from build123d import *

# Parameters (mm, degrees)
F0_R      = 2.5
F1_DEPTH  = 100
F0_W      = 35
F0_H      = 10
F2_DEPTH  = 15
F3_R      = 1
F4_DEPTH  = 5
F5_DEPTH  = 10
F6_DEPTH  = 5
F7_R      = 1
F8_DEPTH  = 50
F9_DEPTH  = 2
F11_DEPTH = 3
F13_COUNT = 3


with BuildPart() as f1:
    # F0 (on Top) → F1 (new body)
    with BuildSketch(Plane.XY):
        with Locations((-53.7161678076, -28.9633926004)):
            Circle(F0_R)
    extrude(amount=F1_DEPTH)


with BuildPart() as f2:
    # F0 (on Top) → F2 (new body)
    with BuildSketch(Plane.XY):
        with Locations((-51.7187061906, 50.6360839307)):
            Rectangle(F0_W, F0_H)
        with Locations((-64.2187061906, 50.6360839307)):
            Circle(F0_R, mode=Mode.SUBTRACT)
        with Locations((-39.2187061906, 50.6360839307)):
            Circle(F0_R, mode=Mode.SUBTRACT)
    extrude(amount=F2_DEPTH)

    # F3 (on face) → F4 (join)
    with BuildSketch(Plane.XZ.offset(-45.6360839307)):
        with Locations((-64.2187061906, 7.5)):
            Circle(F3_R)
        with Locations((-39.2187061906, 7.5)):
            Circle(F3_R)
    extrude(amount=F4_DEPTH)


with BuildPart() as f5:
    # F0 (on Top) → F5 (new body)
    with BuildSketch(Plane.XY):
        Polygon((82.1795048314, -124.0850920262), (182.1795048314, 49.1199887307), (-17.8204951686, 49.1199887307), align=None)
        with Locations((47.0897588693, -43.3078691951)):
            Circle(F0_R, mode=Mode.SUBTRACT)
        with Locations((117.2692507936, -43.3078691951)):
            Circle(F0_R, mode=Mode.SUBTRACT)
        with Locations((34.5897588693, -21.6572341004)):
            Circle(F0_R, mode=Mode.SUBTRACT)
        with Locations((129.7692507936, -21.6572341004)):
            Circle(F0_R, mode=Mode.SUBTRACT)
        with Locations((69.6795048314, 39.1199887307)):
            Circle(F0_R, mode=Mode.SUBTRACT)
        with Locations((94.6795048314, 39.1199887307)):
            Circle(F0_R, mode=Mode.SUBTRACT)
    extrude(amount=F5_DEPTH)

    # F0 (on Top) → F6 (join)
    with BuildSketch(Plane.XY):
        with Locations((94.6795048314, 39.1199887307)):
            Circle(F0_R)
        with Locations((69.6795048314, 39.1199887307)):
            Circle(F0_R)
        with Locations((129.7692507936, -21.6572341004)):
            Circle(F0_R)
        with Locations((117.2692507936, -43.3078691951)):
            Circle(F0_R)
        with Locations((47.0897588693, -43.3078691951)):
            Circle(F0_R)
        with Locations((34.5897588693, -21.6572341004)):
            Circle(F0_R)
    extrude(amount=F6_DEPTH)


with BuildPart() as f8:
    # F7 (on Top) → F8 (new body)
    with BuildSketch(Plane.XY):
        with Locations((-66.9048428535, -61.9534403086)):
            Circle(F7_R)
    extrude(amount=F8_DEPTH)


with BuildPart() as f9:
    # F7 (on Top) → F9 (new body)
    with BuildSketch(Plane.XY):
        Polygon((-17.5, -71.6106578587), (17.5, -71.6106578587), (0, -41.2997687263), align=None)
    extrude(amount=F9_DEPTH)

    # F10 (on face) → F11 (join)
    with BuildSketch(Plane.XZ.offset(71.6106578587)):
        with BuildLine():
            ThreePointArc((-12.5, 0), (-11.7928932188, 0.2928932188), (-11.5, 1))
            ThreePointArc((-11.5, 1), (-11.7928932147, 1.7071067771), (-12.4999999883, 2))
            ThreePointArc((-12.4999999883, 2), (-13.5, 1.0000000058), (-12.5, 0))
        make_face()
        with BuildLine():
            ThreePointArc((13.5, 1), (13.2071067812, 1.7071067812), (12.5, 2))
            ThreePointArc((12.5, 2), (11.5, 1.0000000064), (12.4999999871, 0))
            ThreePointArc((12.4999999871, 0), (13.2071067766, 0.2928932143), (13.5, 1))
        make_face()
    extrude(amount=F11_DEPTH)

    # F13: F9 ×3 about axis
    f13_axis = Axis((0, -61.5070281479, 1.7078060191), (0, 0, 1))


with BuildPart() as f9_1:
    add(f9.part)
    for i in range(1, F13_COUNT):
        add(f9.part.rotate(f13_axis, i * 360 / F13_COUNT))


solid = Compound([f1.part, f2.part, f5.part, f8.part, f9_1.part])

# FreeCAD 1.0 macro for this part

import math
import FreeCAD as App
import Part
import Sketcher
Q = App.Units.Quantity


def add_polygon(sketch, points):
    """Adds a closed chain of lines whose ends are joined by coincident constraints."""
    first, n = sketch.GeometryCount, len(points)
    for a, b in zip(points, points[1:] + points[:1]):
        sketch.addGeometry(Part.LineSegment(App.Vector(*a, 0), App.Vector(*b, 0)), False)
    for i in range(n):
        sketch.addConstraint(Sketcher.Constraint("Coincident", first + i, 2, first + (i + 1) % n, 1))

doc = App.newDocument("Part")
body = doc.addObject("PartDesign::Body", "Body")

sketch1 = body.newObject("Sketcher::SketchObject", "Sketch")
sketch1.AttachmentSupport = (doc.getObject("XY_Plane"), [""])
sketch1.MapMode = "FlatFace"
sketch1.addGeometry(Part.Circle(App.Vector(-53.7, -29, 0), App.Vector(0, 0, 1), 2.5), False)
sketch1.addConstraint(Sketcher.Constraint("Diameter", 0, Q("5 mm")))
sketch1.addConstraint(Sketcher.Constraint("DistanceX", 0, 3, -1, 1, Q("53.716168 mm")))
sketch1.addConstraint(Sketcher.Constraint("DistanceY", 0, 3, -1, 1, Q("28.963393 mm")))
pad1 = body.newObject("PartDesign::Pad", "Pad")
pad1.Profile = sketch1
pad1.Length = 100
body2 = doc.addObject("PartDesign::Body", "Body001")

sketch2 = body2.newObject("Sketcher::SketchObject", "Sketch001")
sketch2.AttachmentSupport = (doc.getObject("XY_Plane001"), [""])
sketch2.MapMode = "FlatFace"
add_polygon(sketch2, [(-69.2, 55.6), (-69.2, 45.6), (-34.2, 45.6), (-34.2, 55.6)])
sketch2.addGeometry(Part.Circle(App.Vector(-64.2, 50.6, 0), App.Vector(0, 0, 1), 2.5), False)
sketch2.addGeometry(Part.Circle(App.Vector(-39.2, 50.6, 0), App.Vector(0, 0, 1), 2.5), False)
sketch2.addConstraint(Sketcher.Constraint("Vertical", 0))
sketch2.addConstraint(Sketcher.Constraint("Horizontal", 1))
sketch2.addConstraint(Sketcher.Constraint("Vertical", 2))
sketch2.addConstraint(Sketcher.Constraint("Horizontal", 3))
sketch2.addConstraint(Sketcher.Constraint("Equal", 4, 5))
sketch2.addConstraint(Sketcher.Constraint("Horizontal", 4, 3, 5, 3))
sketch2.addConstraint(Sketcher.Constraint("Diameter", 4, Q("5 mm")))
sketch2.addConstraint(Sketcher.Constraint("DistanceX", 1, 1, 1, 2, Q("35 mm")))
sketch2.addConstraint(Sketcher.Constraint("DistanceY", 0, 2, 0, 1, Q("10 mm")))
sketch2.addConstraint(Sketcher.Constraint("DistanceX", 4, 3, 5, 3, Q("25 mm")))
sketch2.addConstraint(Sketcher.Constraint("DistanceX", 0, 2, 4, 3, Q("5 mm")))
sketch2.addConstraint(Sketcher.Constraint("DistanceY", 0, 2, 4, 3, Q("5 mm")))
sketch2.addConstraint(Sketcher.Constraint("DistanceX", 4, 3, -1, 1, Q("64.218706 mm")))
sketch2.addConstraint(Sketcher.Constraint("DistanceY", -1, 1, 4, 3, Q("50.636084 mm")))
pad2 = body2.newObject("PartDesign::Pad", "Pad001")
pad2.Profile = sketch2
pad2.Length = 15

sketch3 = body2.newObject("Sketcher::SketchObject", "Sketch002")
sketch3.AttachmentSupport = (doc.getObject("XZ_Plane001"), [""])
sketch3.MapMode = "FlatFace"
sketch3.AttachmentOffset = App.Placement(App.Vector(0, 0, -45.636084), App.Rotation())
sketch3.addGeometry(Part.Circle(App.Vector(-64.2, 7.5, 0), App.Vector(0, 0, 1), 1), False)
sketch3.addGeometry(Part.Circle(App.Vector(-39.2, 7.5, 0), App.Vector(0, 0, 1), 1), False)
sketch3.addConstraint(Sketcher.Constraint("Equal", 0, 1))
sketch3.addConstraint(Sketcher.Constraint("Horizontal", 0, 3, 1, 3))
sketch3.addConstraint(Sketcher.Constraint("Diameter", 0, Q("2 mm")))
sketch3.addConstraint(Sketcher.Constraint("DistanceX", 0, 3, 1, 3, Q("25 mm")))
sketch3.addConstraint(Sketcher.Constraint("DistanceY", -1, 1, 0, 3, Q("7.5 mm")))
sketch3.addConstraint(Sketcher.Constraint("DistanceX", 0, 3, -1, 1, Q("64.218706 mm")))
pad3 = body2.newObject("PartDesign::Pad", "Pad002")
pad3.Profile = sketch3
pad3.Length = 5
body3 = doc.addObject("PartDesign::Body", "Body002")

sketch4 = body3.newObject("Sketcher::SketchObject", "Sketch003")
sketch4.AttachmentSupport = (doc.getObject("XY_Plane002"), [""])
sketch4.MapMode = "FlatFace"
add_polygon(sketch4, [(82.2, -124.1), (182.2, 49.1), (-17.8, 49.1)])
sketch4.addGeometry(Part.Circle(App.Vector(47.1, -43.3, 0), App.Vector(0, 0, 1), 2.5), False)
sketch4.addGeometry(Part.Circle(App.Vector(34.6, -21.7, 0), App.Vector(0, 0, 1), 2.5), False)
sketch4.addGeometry(Part.Circle(App.Vector(117.3, -43.3, 0), App.Vector(0, 0, 1), 2.5), False)
sketch4.addGeometry(Part.Circle(App.Vector(129.8, -21.7, 0), App.Vector(0, 0, 1), 2.5), False)
sketch4.addGeometry(Part.Circle(App.Vector(69.7, 39.1, 0), App.Vector(0, 0, 1), 2.5), False)
sketch4.addGeometry(Part.Circle(App.Vector(94.7, 39.1, 0), App.Vector(0, 0, 1), 2.5), False)
sketch4.addConstraint(Sketcher.Constraint("Horizontal", 1))
sketch4.addConstraint(Sketcher.Constraint("Equal", 3, 4))
sketch4.addConstraint(Sketcher.Constraint("Equal", 4, 5))
sketch4.addConstraint(Sketcher.Constraint("Equal", 5, 6))
sketch4.addConstraint(Sketcher.Constraint("Equal", 6, 7))
sketch4.addConstraint(Sketcher.Constraint("Equal", 7, 8))
sketch4.addConstraint(Sketcher.Constraint("Horizontal", 3, 3, 5, 3))
sketch4.addConstraint(Sketcher.Constraint("Horizontal", 4, 3, 6, 3))
sketch4.addConstraint(Sketcher.Constraint("Horizontal", 7, 3, 8, 3))
sketch4.addConstraint(Sketcher.Constraint("Equal", 0, 2))
sketch4.addConstraint(Sketcher.Constraint("Diameter", 3, Q("5 mm")))
sketch4.addConstraint(Sketcher.Constraint("DistanceX", 1, 2, 1, 1, Q("200 mm")))
sketch4.addConstraint(Sketcher.Constraint("Angle", 0, Q("60 deg")))
sketch4.addConstraint(Sketcher.Constraint("DistanceX", 7, 3, 8, 3, Q("25 mm")))
sketch4.addConstraint(Sketcher.Constraint("DistanceY", 8, 3, 0, 2, Q("10 mm")))
sketch4.addConstraint(Sketcher.Constraint("DistanceX", 4, 3, 3, 3, Q("12.5 mm")))
sketch4.addConstraint(Sketcher.Constraint("DistanceX", 5, 3, 6, 3, Q("12.5 mm")))
sketch4.addConstraint(Sketcher.Constraint("DistanceX", 8, 3, 0, 2, Q("87.5 mm")))
sketch4.addConstraint(Sketcher.Constraint("DistanceX", -1, 1, 3, 3, Q("47.089759 mm")))
sketch4.addConstraint(Sketcher.Constraint("DistanceY", 3, 3, -1, 1, Q("43.307869 mm")))
sketch4.addConstraint(Sketcher.Constraint("DistanceX", -1, 1, 5, 3, Q("117.269251 mm")))
sketch4.addConstraint(Sketcher.Constraint("DistanceY", -1, 1, 7, 3, Q("39.119989 mm")))
sketch4.addConstraint(Sketcher.Constraint("DistanceY", 4, 3, -1, 1, Q("21.657234 mm")))
sketch4.addConstraint(Sketcher.Constraint("DistanceX", -1, 1, 7, 3, Q("69.679505 mm")))
pad4 = body3.newObject("PartDesign::Pad", "Pad003")
pad4.Profile = sketch4
pad4.Length = 10

sketch5 = body3.newObject("Sketcher::SketchObject", "Sketch004")
sketch5.AttachmentSupport = (doc.getObject("XY_Plane002"), [""])
sketch5.MapMode = "FlatFace"
sketch5.addGeometry(Part.Circle(App.Vector(94.7, 39.1, 0), App.Vector(0, 0, 1), 2.5), False)
sketch5.addGeometry(Part.Circle(App.Vector(69.7, 39.1, 0), App.Vector(0, 0, 1), 2.5), False)
sketch5.addGeometry(Part.Circle(App.Vector(129.8, -21.7, 0), App.Vector(0, 0, 1), 2.5), False)
sketch5.addGeometry(Part.Circle(App.Vector(117.3, -43.3, 0), App.Vector(0, 0, 1), 2.5), False)
sketch5.addGeometry(Part.Circle(App.Vector(47.1, -43.3, 0), App.Vector(0, 0, 1), 2.5), False)
sketch5.addGeometry(Part.Circle(App.Vector(34.6, -21.7, 0), App.Vector(0, 0, 1), 2.5), False)
sketch5.addConstraint(Sketcher.Constraint("Equal", 0, 1))
sketch5.addConstraint(Sketcher.Constraint("Equal", 1, 2))
sketch5.addConstraint(Sketcher.Constraint("Equal", 2, 3))
sketch5.addConstraint(Sketcher.Constraint("Equal", 3, 4))
sketch5.addConstraint(Sketcher.Constraint("Equal", 4, 5))
sketch5.addConstraint(Sketcher.Constraint("Horizontal", 0, 3, 1, 3))
sketch5.addConstraint(Sketcher.Constraint("Horizontal", 3, 3, 4, 3))
sketch5.addConstraint(Sketcher.Constraint("Horizontal", 2, 3, 5, 3))
sketch5.addConstraint(Sketcher.Constraint("Diameter", 0, Q("5 mm")))
sketch5.addConstraint(Sketcher.Constraint("DistanceX", 1, 3, 0, 3, Q("25 mm")))
sketch5.addConstraint(Sketcher.Constraint("DistanceX", 3, 3, 2, 3, Q("12.5 mm")))
sketch5.addConstraint(Sketcher.Constraint("DistanceX", 5, 3, 4, 3, Q("12.5 mm")))
sketch5.addConstraint(Sketcher.Constraint("DistanceY", -1, 1, 0, 3, Q("39.119989 mm")))
sketch5.addConstraint(Sketcher.Constraint("DistanceX", -1, 1, 2, 3, Q("129.769251 mm")))
sketch5.addConstraint(Sketcher.Constraint("DistanceY", 3, 3, -1, 1, Q("43.307869 mm")))
sketch5.addConstraint(Sketcher.Constraint("DistanceX", -1, 1, 4, 3, Q("47.089759 mm")))
sketch5.addConstraint(Sketcher.Constraint("DistanceX", -1, 1, 0, 3, Q("94.679505 mm")))
sketch5.addConstraint(Sketcher.Constraint("DistanceY", 2, 3, -1, 1, Q("21.657234 mm")))
pad5 = body3.newObject("PartDesign::Pad", "Pad004")
pad5.Profile = sketch5
pad5.Length = 5
body4 = doc.addObject("PartDesign::Body", "Body003")

sketch6 = body4.newObject("Sketcher::SketchObject", "Sketch005")
sketch6.AttachmentSupport = (doc.getObject("XY_Plane003"), [""])
sketch6.MapMode = "FlatFace"
sketch6.addGeometry(Part.Circle(App.Vector(-66.9, -62, 0), App.Vector(0, 0, 1), 1), False)
sketch6.addConstraint(Sketcher.Constraint("Diameter", 0, Q("2 mm")))
sketch6.addConstraint(Sketcher.Constraint("DistanceY", 0, 3, -1, 1, Q("61.95344 mm")))
sketch6.addConstraint(Sketcher.Constraint("DistanceX", 0, 3, -1, 1, Q("66.904843 mm")))
pad6 = body4.newObject("PartDesign::Pad", "Pad005")
pad6.Profile = sketch6
pad6.Length = 50
body5 = doc.addObject("PartDesign::Body", "Body004")

sketch7 = body5.newObject("Sketcher::SketchObject", "Sketch006")
sketch7.AttachmentSupport = (doc.getObject("XY_Plane004"), [""])
sketch7.MapMode = "FlatFace"
add_polygon(sketch7, [(-18, -72), (18, -72), (0, -41)])
sketch7.addConstraint(Sketcher.Constraint("Horizontal", 0))
sketch7.addConstraint(Sketcher.Constraint("PointOnObject", 1, 2, -2))
sketch7.addConstraint(Sketcher.Constraint("Equal", 1, 2))
sketch7.addConstraint(Sketcher.Constraint("DistanceX", 0, 1, 0, 2, Q("35 mm")))
sketch7.addConstraint(Sketcher.Constraint("Angle", 1, Q("120 deg")))
sketch7.addConstraint(Sketcher.Constraint("DistanceY", 1, 2, -1, 1, Q("41.299769 mm")))
pad7 = body5.newObject("PartDesign::Pad", "Pad006")
pad7.Profile = sketch7
pad7.Length = 2

sketch8 = body5.newObject("Sketcher::SketchObject", "Sketch007")
sketch8.AttachmentSupport = (doc.getObject("XZ_Plane004"), [""])
sketch8.MapMode = "FlatFace"
sketch8.AttachmentOffset = App.Placement(App.Vector(0, 0, 71.610658), App.Rotation())
sketch8.addGeometry(Part.ArcOfCircle(Part.Circle(App.Vector(-12.5, 1, 0), App.Vector(0, 0, 1), 1), math.radians(-90), math.radians(0)), False)
sketch8.addGeometry(Part.ArcOfCircle(Part.Circle(App.Vector(-12.5, 1, 0), App.Vector(0, 0, 1), 1), math.radians(0), math.radians(90)), False)
sketch8.addGeometry(Part.ArcOfCircle(Part.Circle(App.Vector(-12.5, 1, 0), App.Vector(0, 0, 1), 1), math.radians(90), math.radians(270)), False)
sketch8.addGeometry(Part.ArcOfCircle(Part.Circle(App.Vector(12.5, 1, 0), App.Vector(0, 0, 1), 1), math.radians(0), math.radians(90)), False)
sketch8.addGeometry(Part.ArcOfCircle(Part.Circle(App.Vector(12.5, 1, 0), App.Vector(0, 0, 1), 1), math.radians(90), math.radians(270)), False)
sketch8.addGeometry(Part.ArcOfCircle(Part.Circle(App.Vector(12.5, 1, 0), App.Vector(0, 0, 1), 1), math.radians(-90), math.radians(0)), False)
sketch8.addConstraint(Sketcher.Constraint("Tangent", 0, 2, 1, 1))
sketch8.addConstraint(Sketcher.Constraint("Tangent", 1, 2, 2, 1))
sketch8.addConstraint(Sketcher.Constraint("Tangent", 2, 2, 0, 1))
sketch8.addConstraint(Sketcher.Constraint("Tangent", 3, 2, 4, 1))
sketch8.addConstraint(Sketcher.Constraint("Tangent", 4, 2, 5, 1))
sketch8.addConstraint(Sketcher.Constraint("Tangent", 5, 2, 3, 1))
sketch8.addConstraint(Sketcher.Constraint("Equal", 2, 3))
sketch8.addConstraint(Sketcher.Constraint("Symmetric", 2, 2, 4, 2, -1, 1))
sketch8.addConstraint(Sketcher.Constraint("Symmetric", 0, 3, 3, 3, -2))
sketch8.addConstraint(Sketcher.Constraint("Horizontal", 5, 3, 0, 2))
sketch8.addConstraint(Sketcher.Constraint("Horizontal", 0, 2, 5, 2))
sketch8.addConstraint(Sketcher.Constraint("Vertical", 2, 3, 1, 2))
sketch8.addConstraint(Sketcher.Constraint("Vertical", 1, 2, 2, 2))
sketch8.addConstraint(Sketcher.Constraint("Vertical", 5, 3, 3, 2))
sketch8.addConstraint(Sketcher.Constraint("Radius", 0, Q("1 mm")))
sketch8.addConstraint(Sketcher.Constraint("DistanceX", 0, 3, 3, 3, Q("25 mm")))
pad8 = body5.newObject("PartDesign::Pad", "Pad007")
pad8.Profile = sketch8
pad8.Length = 3
body6 = doc.addObject("PartDesign::Body", "Body005")
doc.recompute()

body6.BaseFeature = body5
doc.recompute()

body7 = doc.addObject("PartDesign::Body", "Body006")
body7.BaseFeature = body5
body7.Placement = App.Placement(App.Vector(-53.266649, -92.260542, 0), App.Rotation(App.Vector(0, 0, 1), 120))
boolean = body6.newObject("PartDesign::Boolean", "Boolean")
boolean.Type = "Fuse"
boolean.addObjects([body7])
doc.recompute()

body5.Placement = App.Placement(App.Vector(53.266649, -92.260542, 0), App.Rotation(App.Vector(0, 0, 1), 240))
boolean2 = body6.newObject("PartDesign::Boolean", "Boolean001")
boolean2.Type = "Fuse"
boolean2.addObjects([body5])

doc.recompute()
